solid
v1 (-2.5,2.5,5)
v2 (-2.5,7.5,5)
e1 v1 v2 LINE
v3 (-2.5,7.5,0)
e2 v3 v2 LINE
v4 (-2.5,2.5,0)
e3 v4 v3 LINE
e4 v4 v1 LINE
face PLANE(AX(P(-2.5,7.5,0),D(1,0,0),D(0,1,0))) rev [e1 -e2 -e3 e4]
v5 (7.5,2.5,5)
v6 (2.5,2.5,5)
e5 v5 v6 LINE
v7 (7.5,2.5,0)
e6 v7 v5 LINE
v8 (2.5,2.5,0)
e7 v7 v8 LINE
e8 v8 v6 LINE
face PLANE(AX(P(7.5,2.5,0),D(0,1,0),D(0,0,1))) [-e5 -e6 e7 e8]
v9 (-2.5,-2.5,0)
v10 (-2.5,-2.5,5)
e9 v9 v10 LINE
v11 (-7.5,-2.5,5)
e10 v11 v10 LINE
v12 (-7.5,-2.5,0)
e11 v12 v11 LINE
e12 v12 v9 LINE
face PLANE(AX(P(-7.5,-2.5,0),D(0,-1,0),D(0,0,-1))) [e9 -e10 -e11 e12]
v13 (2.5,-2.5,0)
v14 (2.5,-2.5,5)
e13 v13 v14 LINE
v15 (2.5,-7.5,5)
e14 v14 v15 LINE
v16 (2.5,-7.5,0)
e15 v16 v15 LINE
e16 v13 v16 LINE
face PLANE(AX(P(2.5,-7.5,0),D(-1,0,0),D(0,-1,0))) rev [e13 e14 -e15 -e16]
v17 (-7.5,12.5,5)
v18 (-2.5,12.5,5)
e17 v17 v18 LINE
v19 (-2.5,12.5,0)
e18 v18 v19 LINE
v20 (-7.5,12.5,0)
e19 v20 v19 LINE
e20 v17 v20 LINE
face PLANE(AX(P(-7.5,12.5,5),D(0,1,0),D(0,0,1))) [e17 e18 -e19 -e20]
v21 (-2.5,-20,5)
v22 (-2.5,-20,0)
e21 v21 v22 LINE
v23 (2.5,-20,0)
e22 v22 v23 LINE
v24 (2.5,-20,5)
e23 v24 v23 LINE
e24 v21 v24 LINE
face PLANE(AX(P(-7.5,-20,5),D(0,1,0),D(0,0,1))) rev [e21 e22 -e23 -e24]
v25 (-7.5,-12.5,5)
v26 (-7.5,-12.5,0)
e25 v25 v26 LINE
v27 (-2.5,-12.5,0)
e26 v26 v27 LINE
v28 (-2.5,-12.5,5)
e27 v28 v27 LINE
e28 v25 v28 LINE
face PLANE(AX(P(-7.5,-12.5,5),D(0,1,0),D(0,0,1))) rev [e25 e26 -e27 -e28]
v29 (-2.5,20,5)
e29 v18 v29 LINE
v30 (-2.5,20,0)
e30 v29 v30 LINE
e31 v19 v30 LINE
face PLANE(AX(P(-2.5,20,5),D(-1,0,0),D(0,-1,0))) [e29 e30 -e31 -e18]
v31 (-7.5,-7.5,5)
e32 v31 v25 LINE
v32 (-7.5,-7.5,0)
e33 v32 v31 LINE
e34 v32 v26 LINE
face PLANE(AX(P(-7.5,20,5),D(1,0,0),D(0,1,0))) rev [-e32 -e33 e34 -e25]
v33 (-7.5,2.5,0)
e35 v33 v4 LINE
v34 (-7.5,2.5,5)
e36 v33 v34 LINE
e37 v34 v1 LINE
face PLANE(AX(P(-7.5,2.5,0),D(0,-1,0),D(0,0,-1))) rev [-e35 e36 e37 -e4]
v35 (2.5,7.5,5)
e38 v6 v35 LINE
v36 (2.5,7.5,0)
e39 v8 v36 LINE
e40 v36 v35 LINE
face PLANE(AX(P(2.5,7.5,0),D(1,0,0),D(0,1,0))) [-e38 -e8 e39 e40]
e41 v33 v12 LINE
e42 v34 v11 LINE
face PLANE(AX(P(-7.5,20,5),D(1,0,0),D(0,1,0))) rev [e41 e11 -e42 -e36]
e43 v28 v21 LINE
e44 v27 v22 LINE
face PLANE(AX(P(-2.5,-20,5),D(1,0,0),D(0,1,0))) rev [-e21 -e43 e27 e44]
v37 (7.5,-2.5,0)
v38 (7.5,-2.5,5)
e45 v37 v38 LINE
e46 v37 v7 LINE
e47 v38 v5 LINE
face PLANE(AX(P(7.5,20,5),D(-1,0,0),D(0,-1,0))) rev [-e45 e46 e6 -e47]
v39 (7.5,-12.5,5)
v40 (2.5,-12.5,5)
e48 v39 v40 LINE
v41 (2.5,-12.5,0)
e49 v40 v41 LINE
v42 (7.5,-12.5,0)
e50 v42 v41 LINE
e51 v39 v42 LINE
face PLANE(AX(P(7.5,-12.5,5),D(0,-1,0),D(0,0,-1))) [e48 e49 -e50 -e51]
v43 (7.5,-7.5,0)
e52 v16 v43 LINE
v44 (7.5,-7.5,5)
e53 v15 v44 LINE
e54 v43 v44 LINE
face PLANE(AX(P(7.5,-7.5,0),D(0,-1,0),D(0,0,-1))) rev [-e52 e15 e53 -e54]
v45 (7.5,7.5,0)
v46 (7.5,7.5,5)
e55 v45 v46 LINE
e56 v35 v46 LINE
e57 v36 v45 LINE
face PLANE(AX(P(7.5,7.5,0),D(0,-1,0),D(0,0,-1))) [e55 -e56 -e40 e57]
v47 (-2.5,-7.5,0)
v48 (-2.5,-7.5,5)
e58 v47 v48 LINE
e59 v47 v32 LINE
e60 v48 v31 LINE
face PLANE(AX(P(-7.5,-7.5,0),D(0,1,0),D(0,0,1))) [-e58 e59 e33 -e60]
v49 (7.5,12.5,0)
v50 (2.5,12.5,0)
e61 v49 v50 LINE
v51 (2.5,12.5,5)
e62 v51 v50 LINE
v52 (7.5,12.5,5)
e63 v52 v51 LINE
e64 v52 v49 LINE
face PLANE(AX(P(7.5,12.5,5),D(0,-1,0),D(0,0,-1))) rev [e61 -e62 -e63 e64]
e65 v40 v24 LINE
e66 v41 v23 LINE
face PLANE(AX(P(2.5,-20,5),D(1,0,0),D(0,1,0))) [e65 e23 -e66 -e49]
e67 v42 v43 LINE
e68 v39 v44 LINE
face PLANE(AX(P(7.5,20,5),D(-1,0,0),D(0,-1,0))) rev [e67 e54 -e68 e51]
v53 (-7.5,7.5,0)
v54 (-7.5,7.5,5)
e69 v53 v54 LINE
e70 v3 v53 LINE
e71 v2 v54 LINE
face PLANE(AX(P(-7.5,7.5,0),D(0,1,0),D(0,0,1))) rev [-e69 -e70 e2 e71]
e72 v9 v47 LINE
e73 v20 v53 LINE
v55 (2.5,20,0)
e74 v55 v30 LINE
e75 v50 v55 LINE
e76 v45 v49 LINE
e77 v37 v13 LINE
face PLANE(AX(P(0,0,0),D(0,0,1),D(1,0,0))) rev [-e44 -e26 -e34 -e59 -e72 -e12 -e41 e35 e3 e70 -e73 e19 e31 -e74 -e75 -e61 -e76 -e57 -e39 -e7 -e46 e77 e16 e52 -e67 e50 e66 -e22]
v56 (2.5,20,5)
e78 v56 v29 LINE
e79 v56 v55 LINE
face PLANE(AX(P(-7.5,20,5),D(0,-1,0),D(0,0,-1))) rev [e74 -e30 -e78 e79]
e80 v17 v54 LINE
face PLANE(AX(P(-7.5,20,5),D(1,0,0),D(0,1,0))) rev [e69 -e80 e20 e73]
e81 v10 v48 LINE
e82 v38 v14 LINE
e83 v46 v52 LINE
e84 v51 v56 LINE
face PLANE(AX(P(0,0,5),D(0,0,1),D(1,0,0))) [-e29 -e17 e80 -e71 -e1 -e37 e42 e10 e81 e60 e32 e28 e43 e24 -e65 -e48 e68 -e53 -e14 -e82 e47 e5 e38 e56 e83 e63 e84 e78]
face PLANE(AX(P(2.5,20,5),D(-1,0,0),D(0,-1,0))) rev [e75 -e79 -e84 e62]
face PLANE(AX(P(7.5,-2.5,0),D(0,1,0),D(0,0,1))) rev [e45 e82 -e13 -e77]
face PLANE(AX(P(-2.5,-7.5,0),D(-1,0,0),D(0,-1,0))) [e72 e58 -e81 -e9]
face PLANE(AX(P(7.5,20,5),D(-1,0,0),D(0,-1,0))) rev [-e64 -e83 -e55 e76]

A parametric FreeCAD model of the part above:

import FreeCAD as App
import Part
import Sketcher

V = App.Vector

doc = App.newDocument("Part")
body = doc.addObject("PartDesign::Body", "Body")

sketch1 = doc.addObject("Sketcher::SketchObject", "Sketch")
body.addObject(sketch1)
sketch1.AttachmentSupport = (doc.XY_Plane, [""])
sketch1.MapMode = "FlatFace"
sketch1.addGeometry(Part.LineSegment(V(-8, 20, 0), V(-8, -20, 0)), False)
sketch1.addGeometry(Part.LineSegment(V(-8, -20, 0), V(8, -20, 0)), False)
sketch1.addGeometry(Part.LineSegment(V(8, -20, 0), V(8, 20, 0)), False)
sketch1.addGeometry(Part.LineSegment(V(8, 20, 0), V(-8, 20, 0)), False)
sketch1.addConstraint(Sketcher.Constraint("Coincident", 0, 2, 1, 1))
sketch1.addConstraint(Sketcher.Constraint("Coincident", 1, 2, 2, 1))
sketch1.addConstraint(Sketcher.Constraint("Coincident", 2, 2, 3, 1))
sketch1.addConstraint(Sketcher.Constraint("Coincident", 3, 2, 0, 1))
sketch1.addConstraint(Sketcher.Constraint("Vertical", 0))
sketch1.addConstraint(Sketcher.Constraint("Horizontal", 1))
sketch1.addConstraint(Sketcher.Constraint("Vertical", 2))
sketch1.addConstraint(Sketcher.Constraint("Horizontal", 3))
sketch1.addConstraint(Sketcher.Constraint("Symmetric", 0, 2, 2, 2, -1, 1))
sketch1.addConstraint(Sketcher.Constraint("DistanceX", 1, 1, 1, 2, 15.0))
sketch1.addConstraint(Sketcher.Constraint("DistanceY", 0, 2, 0, 1, 40.0))
pad1 = doc.addObject("PartDesign::Pad", "Pad")
body.addObject(pad1)
pad1.Profile = sketch1
pad1.Length = 5

sketch2 = doc.addObject("Sketcher::SketchObject", "Sketch001")
body.addObject(sketch2)
sketch2.AttachmentSupport = (doc.XY_Plane, [""])
sketch2.MapMode = "FlatFace"
sketch2.addGeometry(Part.LineSegment(V(-8, 20, 0), V(-8, 12, 0)), False)
sketch2.addGeometry(Part.LineSegment(V(-8, 12, 0), V(-2, 12, 0)), False)
sketch2.addGeometry(Part.LineSegment(V(-2, 12, 0), V(-2, 20, 0)), False)
sketch2.addGeometry(Part.LineSegment(V(-2, 20, 0), V(-8, 20, 0)), False)
sketch2.addConstraint(Sketcher.Constraint("Coincident", 0, 2, 1, 1))
sketch2.addConstraint(Sketcher.Constraint("Coincident", 1, 2, 2, 1))
sketch2.addConstraint(Sketcher.Constraint("Coincident", 2, 2, 3, 1))
sketch2.addConstraint(Sketcher.Constraint("Coincident", 3, 2, 0, 1))
sketch2.addConstraint(Sketcher.Constraint("Vertical", 0))
sketch2.addConstraint(Sketcher.Constraint("Horizontal", 1))
sketch2.addConstraint(Sketcher.Constraint("Vertical", 2))
sketch2.addConstraint(Sketcher.Constraint("Horizontal", 3))
sketch2.addConstraint(Sketcher.Constraint("DistanceX", 1, 1, 1, 2, 5.0))
sketch2.addConstraint(Sketcher.Constraint("DistanceY", 0, 2, 0, 1, 7.5))
sketch2.addConstraint(Sketcher.Constraint("DistanceY", -1, 1, 2, 2, 20.0))
sketch2.addConstraint(Sketcher.Constraint("DistanceX", 0, 2, -1, 1, 7.5))
pocket1 = doc.addObject("PartDesign::Pocket", "Pocket")
body.addObject(pocket1)
pocket1.Profile = sketch2
pocket1.Length = 5
pocket1.Reversed = True
doc.recompute()

mirrored = doc.addObject("PartDesign::Mirrored", "Mirrored")
body.addObject(mirrored)
mirrored.Originals = [pocket1]
mirrored.MirrorPlane = (doc.XZ_Plane, [""])
body.Tip = mirrored
doc.recompute()

mirrored2 = doc.addObject("PartDesign::Mirrored", "Mirrored001")
body.addObject(mirrored2)
mirrored2.Originals = [pocket1]
mirrored2.MirrorPlane = (doc.YZ_Plane, [""])
body.Tip = mirrored2

sketch3 = doc.addObject("Sketcher::SketchObject", "Sketch002")
body.addObject(sketch3)
sketch3.AttachmentSupport = (doc.XY_Plane, [""])
sketch3.MapMode = "FlatFace"
sketch3.addGeometry(Part.LineSegment(V(8, -20, 0), V(8, -12, 0)), False)
sketch3.addGeometry(Part.LineSegment(V(8, -12, 0), V(2, -12, 0)), False)
sketch3.addGeometry(Part.LineSegment(V(2, -12, 0), V(2, -20, 0)), False)
sketch3.addGeometry(Part.LineSegment(V(2, -20, 0), V(8, -20, 0)), False)
sketch3.addConstraint(Sketcher.Constraint("Coincident", 0, 2, 1, 1))
sketch3.addConstraint(Sketcher.Constraint("Coincident", 1, 2, 2, 1))
sketch3.addConstraint(Sketcher.Constraint("Coincident", 2, 2, 3, 1))
sketch3.addConstraint(Sketcher.Constraint("Coincident", 3, 2, 0, 1))
sketch3.addConstraint(Sketcher.Constraint("Vertical", 0))
sketch3.addConstraint(Sketcher.Constraint("Horizontal", 1))
sketch3.addConstraint(Sketcher.Constraint("Vertical", 2))
sketch3.addConstraint(Sketcher.Constraint("Horizontal", 3))
sketch3.addConstraint(Sketcher.Constraint("DistanceX", 1, 2, 1, 1, 5.0))
sketch3.addConstraint(Sketcher.Constraint("DistanceY", 0, 1, 0, 2, 7.5))
sketch3.addConstraint(Sketcher.Constraint("DistanceY", 2, 2, -1, 1, 20.0))
sketch3.addConstraint(Sketcher.Constraint("DistanceX", -1, 1, 0, 2, 7.5))
pocket2 = doc.addObject("PartDesign::Pocket", "Pocket001")
body.addObject(pocket2)
pocket2.Profile = sketch3
pocket2.Length = 5
pocket2.Reversed = True

sketch4 = doc.addObject("Sketcher::SketchObject", "Sketch003")
body.addObject(sketch4)
sketch4.AttachmentSupport = (doc.XY_Plane, [""])
sketch4.MapMode = "FlatFace"
sketch4.AttachmentOffset = App.Placement(V(0, 0, 5), App.Rotation())
sketch4.addGeometry(Part.LineSegment(V(-8, 8, 0), V(-8, 2, 0)), False)
sketch4.addGeometry(Part.LineSegment(V(-8, 2, 0), V(-2, 2, 0)), False)
sketch4.addGeometry(Part.LineSegment(V(-2, 2, 0), V(-2, 8, 0)), False)
sketch4.addGeometry(Part.LineSegment(V(-2, 8, 0), V(-8, 8, 0)), False)
sketch4.addConstraint(Sketcher.Constraint("Coincident", 0, 2, 1, 1))
sketch4.addConstraint(Sketcher.Constraint("Coincident", 1, 2, 2, 1))
sketch4.addConstraint(Sketcher.Constraint("Coincident", 2, 2, 3, 1))
sketch4.addConstraint(Sketcher.Constraint("Coincident", 3, 2, 0, 1))
sketch4.addConstraint(Sketcher.Constraint("Vertical", 0))
sketch4.addConstraint(Sketcher.Constraint("Horizontal", 1))
sketch4.addConstraint(Sketcher.Constraint("Vertical", 2))
sketch4.addConstraint(Sketcher.Constraint("Horizontal", 3))
sketch4.addConstraint(Sketcher.Constraint("Equal", 3, 0))
sketch4.addConstraint(Sketcher.Constraint("DistanceX", 1, 1, 1, 2, 5.0))
sketch4.addConstraint(Sketcher.Constraint("DistanceX", 0, 2, -1, 1, 7.5))
sketch4.addConstraint(Sketcher.Constraint("DistanceY", -1, 1, 0, 2, 2.5))
pocket3 = doc.addObject("PartDesign::Pocket", "Pocket002")
body.addObject(pocket3)
pocket3.Profile = sketch4
pocket3.Length = 5
doc.recompute()

mirrored3 = doc.addObject("PartDesign::Mirrored", "Mirrored002")
body.addObject(mirrored3)
mirrored3.Originals = [pocket3]
mirrored3.MirrorPlane = (doc.XZ_Plane, [""])
body.Tip = mirrored3
doc.recompute()

mirrored4 = doc.addObject("PartDesign::Mirrored", "Mirrored003")
body.addObject(mirrored4)
mirrored4.Originals = [pocket3]
mirrored4.MirrorPlane = (doc.YZ_Plane, [""])
body.Tip = mirrored4

sketch5 = doc.addObject("Sketcher::SketchObject", "Sketch004")
body.addObject(sketch5)
sketch5.AttachmentSupport = (doc.XY_Plane, [""])
sketch5.MapMode = "FlatFace"
sketch5.AttachmentOffset = App.Placement(V(0, 0, 5), App.Rotation())
sketch5.addGeometry(Part.LineSegment(V(8, -8, 0), V(8, -2, 0)), False)
sketch5.addGeometry(Part.LineSegment(V(8, -2, 0), V(2, -2, 0)), False)
sketch5.addGeometry(Part.LineSegment(V(2, -2, 0), V(2, -8, 0)), False)
sketch5.addGeometry(Part.LineSegment(V(2, -8, 0), V(8, -8, 0)), False)
sketch5.addConstraint(Sketcher.Constraint("Coincident", 0, 2, 1, 1))
sketch5.addConstraint(Sketcher.Constraint("Coincident", 1, 2, 2, 1))
sketch5.addConstraint(Sketcher.Constraint("Coincident", 2, 2, 3, 1))
sketch5.addConstraint(Sketcher.Constraint("Coincident", 3, 2, 0, 1))
sketch5.addConstraint(Sketcher.Constraint("Vertical", 0))
sketch5.addConstraint(Sketcher.Constraint("Horizontal", 1))
sketch5.addConstraint(Sketcher.Constraint("Vertical", 2))
sketch5.addConstraint(Sketcher.Constraint("Horizontal", 3))
sketch5.addConstraint(Sketcher.Constraint("Equal", 3, 0))
sketch5.addConstraint(Sketcher.Constraint("DistanceX", 1, 2, 1, 1, 5.0))
sketch5.addConstraint(Sketcher.Constraint("DistanceX", -1, 1, 0, 2, 7.5))
sketch5.addConstraint(Sketcher.Constraint("DistanceY", 0, 2, -1, 1, 2.5))
pocket4 = doc.addObject("PartDesign::Pocket", "Pocket003")
body.addObject(pocket4)
pocket4.Profile = sketch5
pocket4.Length = 5

doc.recompute()
